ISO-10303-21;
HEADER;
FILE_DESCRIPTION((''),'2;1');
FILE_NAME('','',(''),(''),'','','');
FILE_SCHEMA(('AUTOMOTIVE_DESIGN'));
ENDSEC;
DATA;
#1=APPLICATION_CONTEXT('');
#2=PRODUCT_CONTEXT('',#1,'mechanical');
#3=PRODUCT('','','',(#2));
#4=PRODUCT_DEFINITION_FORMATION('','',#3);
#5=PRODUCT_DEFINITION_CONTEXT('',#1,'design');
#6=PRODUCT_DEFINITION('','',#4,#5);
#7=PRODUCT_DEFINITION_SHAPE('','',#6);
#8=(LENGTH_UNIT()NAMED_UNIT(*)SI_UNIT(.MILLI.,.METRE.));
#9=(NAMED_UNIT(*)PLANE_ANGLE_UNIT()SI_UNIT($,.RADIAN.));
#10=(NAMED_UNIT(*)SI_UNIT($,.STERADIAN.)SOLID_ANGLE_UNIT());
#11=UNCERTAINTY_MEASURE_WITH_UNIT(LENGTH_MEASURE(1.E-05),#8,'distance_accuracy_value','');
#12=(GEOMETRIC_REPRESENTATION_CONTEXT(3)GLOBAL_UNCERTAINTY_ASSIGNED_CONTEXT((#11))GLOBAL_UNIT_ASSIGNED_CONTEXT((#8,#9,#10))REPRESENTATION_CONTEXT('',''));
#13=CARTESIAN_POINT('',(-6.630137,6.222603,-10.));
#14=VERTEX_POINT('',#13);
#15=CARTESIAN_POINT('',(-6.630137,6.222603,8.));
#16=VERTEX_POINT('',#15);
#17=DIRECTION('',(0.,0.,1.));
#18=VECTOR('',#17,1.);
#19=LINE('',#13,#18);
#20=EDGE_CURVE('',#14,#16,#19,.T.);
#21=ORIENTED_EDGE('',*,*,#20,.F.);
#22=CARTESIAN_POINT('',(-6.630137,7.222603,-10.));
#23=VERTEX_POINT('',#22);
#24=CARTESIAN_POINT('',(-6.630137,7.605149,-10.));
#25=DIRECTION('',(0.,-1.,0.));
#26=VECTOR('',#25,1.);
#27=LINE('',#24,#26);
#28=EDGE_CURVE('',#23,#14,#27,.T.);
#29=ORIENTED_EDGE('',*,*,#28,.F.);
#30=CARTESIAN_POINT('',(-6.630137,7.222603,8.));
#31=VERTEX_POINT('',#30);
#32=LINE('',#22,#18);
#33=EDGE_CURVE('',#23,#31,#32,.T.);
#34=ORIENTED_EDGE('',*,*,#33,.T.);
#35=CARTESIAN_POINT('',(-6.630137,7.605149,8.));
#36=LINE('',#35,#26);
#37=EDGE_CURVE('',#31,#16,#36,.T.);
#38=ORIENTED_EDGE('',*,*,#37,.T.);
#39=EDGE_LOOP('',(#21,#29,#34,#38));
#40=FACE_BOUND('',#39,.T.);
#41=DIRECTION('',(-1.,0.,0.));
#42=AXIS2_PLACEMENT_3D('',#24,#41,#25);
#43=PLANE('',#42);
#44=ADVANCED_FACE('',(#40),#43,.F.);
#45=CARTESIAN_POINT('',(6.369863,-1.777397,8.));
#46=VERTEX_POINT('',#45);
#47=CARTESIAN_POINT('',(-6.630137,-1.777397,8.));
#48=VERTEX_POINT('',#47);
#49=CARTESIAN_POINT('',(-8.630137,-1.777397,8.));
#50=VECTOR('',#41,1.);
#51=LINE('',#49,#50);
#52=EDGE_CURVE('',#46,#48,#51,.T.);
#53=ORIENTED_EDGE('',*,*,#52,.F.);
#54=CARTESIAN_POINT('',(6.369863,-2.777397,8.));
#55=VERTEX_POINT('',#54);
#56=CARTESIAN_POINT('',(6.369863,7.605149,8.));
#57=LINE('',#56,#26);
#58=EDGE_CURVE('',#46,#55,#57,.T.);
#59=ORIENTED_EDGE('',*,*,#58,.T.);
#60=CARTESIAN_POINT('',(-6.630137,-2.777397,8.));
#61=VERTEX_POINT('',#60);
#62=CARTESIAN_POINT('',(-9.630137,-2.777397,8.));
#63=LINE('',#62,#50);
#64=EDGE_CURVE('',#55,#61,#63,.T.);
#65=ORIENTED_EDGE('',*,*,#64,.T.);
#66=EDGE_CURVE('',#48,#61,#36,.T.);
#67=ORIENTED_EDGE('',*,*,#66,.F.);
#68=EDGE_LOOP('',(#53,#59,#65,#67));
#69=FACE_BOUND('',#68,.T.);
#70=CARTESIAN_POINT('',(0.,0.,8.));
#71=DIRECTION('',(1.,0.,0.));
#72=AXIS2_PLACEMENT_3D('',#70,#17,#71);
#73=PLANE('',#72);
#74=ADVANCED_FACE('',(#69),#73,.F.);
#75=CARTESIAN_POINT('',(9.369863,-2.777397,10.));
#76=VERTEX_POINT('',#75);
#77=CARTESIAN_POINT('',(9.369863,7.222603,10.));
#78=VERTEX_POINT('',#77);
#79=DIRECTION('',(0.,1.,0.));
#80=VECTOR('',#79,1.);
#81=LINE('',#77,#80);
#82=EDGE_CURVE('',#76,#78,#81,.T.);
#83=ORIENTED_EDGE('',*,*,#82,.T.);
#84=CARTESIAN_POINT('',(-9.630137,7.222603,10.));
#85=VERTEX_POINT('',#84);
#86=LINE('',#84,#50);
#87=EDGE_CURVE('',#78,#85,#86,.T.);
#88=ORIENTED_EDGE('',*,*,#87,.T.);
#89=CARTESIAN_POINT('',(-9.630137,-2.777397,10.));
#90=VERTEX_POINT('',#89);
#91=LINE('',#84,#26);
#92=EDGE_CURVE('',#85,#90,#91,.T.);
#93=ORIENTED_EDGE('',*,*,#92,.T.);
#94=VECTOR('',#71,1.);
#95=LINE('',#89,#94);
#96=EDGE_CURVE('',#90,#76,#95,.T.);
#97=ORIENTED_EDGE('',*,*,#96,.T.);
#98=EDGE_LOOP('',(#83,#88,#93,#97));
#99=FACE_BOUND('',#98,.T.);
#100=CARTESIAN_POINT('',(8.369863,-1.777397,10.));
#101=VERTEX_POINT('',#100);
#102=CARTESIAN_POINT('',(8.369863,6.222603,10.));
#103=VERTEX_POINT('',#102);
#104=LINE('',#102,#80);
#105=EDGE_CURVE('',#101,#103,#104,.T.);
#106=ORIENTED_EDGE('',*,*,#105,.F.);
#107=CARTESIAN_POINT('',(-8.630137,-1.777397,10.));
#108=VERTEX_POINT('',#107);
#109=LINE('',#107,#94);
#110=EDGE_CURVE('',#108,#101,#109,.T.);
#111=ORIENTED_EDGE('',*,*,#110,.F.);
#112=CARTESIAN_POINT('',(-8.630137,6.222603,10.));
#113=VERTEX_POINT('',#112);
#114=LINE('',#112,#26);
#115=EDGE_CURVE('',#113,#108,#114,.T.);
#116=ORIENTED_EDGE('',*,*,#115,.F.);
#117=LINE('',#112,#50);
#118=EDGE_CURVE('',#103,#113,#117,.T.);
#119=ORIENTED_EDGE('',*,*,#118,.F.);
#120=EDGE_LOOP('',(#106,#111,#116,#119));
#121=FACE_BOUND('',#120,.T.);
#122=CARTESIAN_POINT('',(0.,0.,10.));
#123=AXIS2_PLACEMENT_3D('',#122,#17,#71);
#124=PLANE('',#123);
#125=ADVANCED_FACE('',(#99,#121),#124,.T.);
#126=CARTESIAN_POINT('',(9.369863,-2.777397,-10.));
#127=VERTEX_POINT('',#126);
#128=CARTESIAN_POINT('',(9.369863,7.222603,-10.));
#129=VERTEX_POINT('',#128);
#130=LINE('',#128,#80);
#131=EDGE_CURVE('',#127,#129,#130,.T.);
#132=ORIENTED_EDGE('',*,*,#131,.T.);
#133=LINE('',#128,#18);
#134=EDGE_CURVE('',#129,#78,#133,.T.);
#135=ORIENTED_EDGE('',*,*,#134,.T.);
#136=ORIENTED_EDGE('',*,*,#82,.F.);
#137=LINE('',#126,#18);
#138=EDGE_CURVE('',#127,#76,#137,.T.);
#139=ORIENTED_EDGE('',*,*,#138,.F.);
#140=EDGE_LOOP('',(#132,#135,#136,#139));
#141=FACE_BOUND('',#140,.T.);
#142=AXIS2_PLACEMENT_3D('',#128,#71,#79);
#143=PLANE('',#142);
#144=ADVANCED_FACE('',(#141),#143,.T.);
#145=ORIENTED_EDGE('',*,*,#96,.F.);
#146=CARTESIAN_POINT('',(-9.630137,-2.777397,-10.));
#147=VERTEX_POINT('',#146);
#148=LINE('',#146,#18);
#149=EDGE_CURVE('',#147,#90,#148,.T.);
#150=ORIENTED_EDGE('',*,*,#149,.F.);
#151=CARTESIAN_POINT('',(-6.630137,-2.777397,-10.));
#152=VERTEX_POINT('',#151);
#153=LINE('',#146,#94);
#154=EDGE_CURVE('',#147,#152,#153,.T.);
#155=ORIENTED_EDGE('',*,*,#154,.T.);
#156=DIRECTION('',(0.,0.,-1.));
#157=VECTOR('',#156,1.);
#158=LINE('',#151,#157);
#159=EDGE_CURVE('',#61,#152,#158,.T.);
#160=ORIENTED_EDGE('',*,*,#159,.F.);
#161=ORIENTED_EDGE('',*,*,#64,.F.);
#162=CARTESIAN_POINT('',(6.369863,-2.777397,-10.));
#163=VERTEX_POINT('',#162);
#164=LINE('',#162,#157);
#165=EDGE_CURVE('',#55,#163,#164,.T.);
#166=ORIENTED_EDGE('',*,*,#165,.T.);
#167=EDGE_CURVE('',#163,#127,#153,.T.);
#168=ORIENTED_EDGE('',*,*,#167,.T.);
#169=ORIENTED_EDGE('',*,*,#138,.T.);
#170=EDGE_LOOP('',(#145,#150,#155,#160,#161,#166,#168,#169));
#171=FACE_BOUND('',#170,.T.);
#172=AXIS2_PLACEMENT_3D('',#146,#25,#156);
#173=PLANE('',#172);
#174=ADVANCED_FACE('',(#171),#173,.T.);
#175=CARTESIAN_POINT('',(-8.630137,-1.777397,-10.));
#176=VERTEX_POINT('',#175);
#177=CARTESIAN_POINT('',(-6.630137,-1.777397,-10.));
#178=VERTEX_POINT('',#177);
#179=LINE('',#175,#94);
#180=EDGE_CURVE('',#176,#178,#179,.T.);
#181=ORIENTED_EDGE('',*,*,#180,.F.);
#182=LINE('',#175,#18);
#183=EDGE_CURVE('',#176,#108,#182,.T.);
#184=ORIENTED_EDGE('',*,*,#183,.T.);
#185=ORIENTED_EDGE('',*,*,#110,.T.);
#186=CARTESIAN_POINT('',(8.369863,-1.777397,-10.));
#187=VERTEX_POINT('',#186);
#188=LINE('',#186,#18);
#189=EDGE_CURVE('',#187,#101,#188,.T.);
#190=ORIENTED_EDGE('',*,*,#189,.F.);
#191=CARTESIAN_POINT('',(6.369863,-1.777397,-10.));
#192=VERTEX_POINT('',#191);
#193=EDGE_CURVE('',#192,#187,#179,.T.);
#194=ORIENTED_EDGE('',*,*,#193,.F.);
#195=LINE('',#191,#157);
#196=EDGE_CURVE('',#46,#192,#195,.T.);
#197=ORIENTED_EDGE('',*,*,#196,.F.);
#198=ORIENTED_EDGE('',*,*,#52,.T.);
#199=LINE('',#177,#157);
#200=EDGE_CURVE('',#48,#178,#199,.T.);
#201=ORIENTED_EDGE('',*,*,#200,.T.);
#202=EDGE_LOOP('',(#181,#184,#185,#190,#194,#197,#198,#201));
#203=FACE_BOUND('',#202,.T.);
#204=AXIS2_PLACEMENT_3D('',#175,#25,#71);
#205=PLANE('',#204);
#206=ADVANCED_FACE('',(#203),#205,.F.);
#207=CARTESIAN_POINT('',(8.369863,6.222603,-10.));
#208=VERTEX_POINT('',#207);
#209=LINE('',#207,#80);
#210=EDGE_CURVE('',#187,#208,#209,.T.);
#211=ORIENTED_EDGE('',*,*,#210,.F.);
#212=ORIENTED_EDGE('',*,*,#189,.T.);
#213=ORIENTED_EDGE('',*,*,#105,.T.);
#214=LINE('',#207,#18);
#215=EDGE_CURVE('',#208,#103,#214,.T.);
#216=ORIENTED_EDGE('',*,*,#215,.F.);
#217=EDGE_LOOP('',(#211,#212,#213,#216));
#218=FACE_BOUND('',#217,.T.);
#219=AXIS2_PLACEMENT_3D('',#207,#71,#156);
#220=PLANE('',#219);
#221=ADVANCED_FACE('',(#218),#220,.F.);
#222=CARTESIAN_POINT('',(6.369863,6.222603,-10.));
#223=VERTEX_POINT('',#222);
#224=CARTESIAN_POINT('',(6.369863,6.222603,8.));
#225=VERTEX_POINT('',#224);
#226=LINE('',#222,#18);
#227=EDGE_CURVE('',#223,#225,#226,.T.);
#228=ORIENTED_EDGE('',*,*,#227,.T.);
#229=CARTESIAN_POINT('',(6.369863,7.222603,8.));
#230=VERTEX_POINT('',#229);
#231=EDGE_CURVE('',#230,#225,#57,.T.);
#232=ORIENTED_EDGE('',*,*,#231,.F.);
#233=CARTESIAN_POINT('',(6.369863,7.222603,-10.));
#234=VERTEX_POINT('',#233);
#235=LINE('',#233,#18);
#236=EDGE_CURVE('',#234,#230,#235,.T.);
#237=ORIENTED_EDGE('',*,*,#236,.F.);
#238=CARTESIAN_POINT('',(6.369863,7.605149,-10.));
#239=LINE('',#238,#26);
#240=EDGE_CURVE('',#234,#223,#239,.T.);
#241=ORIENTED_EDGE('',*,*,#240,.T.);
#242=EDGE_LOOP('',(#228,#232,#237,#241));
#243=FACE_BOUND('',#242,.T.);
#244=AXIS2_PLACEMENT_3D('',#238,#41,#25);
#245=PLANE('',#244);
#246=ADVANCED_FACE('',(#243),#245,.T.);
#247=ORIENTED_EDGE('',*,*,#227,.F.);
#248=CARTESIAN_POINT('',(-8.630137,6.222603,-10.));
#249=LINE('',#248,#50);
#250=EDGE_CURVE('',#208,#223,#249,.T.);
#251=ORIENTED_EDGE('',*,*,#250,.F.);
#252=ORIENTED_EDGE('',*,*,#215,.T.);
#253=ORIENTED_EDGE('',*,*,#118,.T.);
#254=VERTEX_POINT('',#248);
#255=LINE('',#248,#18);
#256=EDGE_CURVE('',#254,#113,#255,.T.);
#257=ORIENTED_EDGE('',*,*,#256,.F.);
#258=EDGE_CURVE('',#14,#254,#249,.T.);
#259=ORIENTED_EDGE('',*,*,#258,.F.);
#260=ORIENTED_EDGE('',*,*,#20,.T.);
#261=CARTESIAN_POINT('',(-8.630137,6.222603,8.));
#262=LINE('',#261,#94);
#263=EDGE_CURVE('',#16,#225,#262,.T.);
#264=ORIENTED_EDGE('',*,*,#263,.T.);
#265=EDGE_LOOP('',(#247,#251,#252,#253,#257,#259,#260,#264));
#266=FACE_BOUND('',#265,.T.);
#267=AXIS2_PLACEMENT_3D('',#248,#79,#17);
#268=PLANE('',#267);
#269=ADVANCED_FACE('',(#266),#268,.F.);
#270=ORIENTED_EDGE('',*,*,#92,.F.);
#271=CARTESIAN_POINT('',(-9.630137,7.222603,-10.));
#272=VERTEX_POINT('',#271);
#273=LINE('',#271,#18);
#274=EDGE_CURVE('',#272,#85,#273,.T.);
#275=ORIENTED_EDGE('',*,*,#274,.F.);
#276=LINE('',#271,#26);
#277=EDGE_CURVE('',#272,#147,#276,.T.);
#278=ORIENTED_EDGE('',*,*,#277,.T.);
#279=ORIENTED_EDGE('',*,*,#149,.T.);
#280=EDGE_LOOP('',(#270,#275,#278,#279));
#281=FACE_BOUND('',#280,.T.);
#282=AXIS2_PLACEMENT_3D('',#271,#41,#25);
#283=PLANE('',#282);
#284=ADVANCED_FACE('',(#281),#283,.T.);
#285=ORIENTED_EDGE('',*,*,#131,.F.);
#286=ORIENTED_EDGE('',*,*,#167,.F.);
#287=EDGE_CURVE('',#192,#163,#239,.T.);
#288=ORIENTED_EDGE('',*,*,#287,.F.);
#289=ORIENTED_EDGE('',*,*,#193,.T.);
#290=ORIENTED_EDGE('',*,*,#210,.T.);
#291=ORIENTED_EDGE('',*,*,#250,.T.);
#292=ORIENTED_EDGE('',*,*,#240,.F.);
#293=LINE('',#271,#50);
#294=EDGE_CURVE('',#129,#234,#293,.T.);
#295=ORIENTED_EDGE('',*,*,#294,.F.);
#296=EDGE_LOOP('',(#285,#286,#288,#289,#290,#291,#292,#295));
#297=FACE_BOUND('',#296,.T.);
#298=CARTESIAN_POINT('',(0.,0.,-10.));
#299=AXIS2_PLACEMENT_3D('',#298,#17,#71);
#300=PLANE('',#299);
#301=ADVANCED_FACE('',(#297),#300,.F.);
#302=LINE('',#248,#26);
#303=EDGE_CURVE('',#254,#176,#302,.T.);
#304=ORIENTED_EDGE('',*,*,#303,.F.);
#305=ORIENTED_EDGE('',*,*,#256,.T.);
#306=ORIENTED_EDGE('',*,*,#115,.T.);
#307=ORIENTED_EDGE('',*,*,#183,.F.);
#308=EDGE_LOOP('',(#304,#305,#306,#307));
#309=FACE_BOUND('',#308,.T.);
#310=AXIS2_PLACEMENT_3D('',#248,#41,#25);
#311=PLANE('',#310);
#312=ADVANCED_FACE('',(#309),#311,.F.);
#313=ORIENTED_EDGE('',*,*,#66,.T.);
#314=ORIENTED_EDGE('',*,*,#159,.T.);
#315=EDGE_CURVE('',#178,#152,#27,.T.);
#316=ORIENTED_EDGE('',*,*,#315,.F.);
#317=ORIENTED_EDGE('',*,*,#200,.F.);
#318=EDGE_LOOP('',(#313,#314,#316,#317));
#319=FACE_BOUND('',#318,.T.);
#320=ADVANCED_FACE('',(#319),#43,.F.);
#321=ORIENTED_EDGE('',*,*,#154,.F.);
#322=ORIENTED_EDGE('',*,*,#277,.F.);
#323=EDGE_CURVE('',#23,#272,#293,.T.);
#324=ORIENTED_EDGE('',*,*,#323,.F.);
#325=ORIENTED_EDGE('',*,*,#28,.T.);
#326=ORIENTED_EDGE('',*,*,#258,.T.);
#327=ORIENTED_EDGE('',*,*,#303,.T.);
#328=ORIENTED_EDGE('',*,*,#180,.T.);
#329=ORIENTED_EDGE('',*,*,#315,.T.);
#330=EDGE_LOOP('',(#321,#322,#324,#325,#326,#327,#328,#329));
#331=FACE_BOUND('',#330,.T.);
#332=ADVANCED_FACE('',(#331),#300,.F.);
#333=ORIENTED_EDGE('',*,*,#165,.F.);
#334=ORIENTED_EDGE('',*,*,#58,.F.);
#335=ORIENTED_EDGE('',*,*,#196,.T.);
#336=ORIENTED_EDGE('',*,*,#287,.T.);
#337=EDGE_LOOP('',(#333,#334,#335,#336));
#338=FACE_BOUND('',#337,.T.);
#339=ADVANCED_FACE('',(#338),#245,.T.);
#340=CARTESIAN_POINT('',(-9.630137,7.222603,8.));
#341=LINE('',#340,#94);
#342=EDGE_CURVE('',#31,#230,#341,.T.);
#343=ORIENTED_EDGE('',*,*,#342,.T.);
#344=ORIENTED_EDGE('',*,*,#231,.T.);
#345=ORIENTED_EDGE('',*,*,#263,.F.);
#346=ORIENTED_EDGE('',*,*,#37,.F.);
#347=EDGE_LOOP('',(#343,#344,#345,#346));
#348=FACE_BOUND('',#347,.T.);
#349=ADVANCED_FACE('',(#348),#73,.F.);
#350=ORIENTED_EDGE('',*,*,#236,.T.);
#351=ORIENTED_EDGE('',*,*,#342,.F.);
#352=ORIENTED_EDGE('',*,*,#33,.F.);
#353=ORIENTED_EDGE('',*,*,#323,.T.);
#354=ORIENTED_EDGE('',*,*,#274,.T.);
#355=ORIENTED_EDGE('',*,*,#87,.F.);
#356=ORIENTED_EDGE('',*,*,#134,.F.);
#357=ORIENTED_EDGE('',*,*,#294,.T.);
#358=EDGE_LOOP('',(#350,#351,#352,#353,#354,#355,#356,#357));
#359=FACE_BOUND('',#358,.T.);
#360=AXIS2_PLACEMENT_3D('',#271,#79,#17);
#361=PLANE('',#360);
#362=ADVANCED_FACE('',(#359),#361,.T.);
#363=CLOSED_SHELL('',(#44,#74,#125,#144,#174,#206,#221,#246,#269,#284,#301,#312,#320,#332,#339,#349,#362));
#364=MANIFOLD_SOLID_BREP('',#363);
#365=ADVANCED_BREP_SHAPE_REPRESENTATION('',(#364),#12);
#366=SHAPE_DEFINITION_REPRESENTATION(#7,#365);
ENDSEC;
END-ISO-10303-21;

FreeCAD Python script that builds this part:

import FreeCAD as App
import Part
import Sketcher

V = App.Vector

doc = App.newDocument("Part")
body = doc.addObject("PartDesign::Body", "Body")

sketch1 = body.newObject("Sketcher::SketchObject", "Sketch")
sketch1.AttachmentSupport = (doc.getObject("XY_Plane"), [""])
sketch1.MapMode = "FlatFace"
sketch1.addGeometry([
    Part.LineSegment(V(-10, 7, 0), V(-10, -3, 0)),
    Part.LineSegment(V(-10, -3, 0), V(9, -3, 0)),
    Part.LineSegment(V(9, -3, 0), V(9, 7, 0)),
    Part.LineSegment(V(9, 7, 0), V(-10, 7, 0)),
], False)
sketch1.addConstraint([
    Sketcher.Constraint("Coincident", 0, 2, 1, 1),
    Sketcher.Constraint("Coincident", 1, 2, 2, 1),
    Sketcher.Constraint("Coincident", 2, 2, 3, 1),
    Sketcher.Constraint("Coincident", 3, 2, 0, 1),
    Sketcher.Constraint("Vertical", 0),
    Sketcher.Constraint("Horizontal", 1),
    Sketcher.Constraint("Vertical", 2),
    Sketcher.Constraint("Horizontal", 3),
    Sketcher.Constraint("DistanceX", 1, 1, 1, 2, 19.0),
    Sketcher.Constraint("DistanceY", 0, 2, 0, 1, 10.0),
    Sketcher.Constraint("DistanceX", 0, 2, -1, 1, 9.630137),
    Sketcher.Constraint("DistanceY", 0, 2, -1, 1, 2.777397),
])
pad1 = body.newObject("PartDesign::Pad", "Pad")
pad1.Profile = sketch1
pad1.Type = "TwoLengths"
pad1.Length = 10
pad1.Length2 = 10

sketch2 = body.newObject("Sketcher::SketchObject", "Sketch001")
sketch2.AttachmentSupport = (doc.getObject("XY_Plane"), [""])
sketch2.MapMode = "FlatFace"
sketch2.AttachmentOffset = App.Placement(V(0, 0, 10), App.Rotation())
sketch2.addGeometry([
    Part.LineSegment(V(-9, 6, 0), V(-9, -2, 0)),
    Part.LineSegment(V(-9, -2, 0), V(8, -2, 0)),
    Part.LineSegment(V(8, -2, 0), V(8, 6, 0)),
    Part.LineSegment(V(8, 6, 0), V(-9, 6, 0)),
], False)
sketch2.addConstraint([
    Sketcher.Constraint("Coincident", 0, 2, 1, 1),
    Sketcher.Constraint("Coincident", 1, 2, 2, 1),
    Sketcher.Constraint("Coincident", 2, 2, 3, 1),
    Sketcher.Constraint("Coincident", 3, 2, 0, 1),
    Sketcher.Constraint("Vertical", 0),
    Sketcher.Constraint("Horizontal", 1),
    Sketcher.Constraint("Vertical", 2),
    Sketcher.Constraint("Horizontal", 3),
    Sketcher.Constraint("DistanceX", 1, 1, 1, 2, 17.0),
    Sketcher.Constraint("DistanceY", 0, 2, 0, 1, 8.0),
    Sketcher.Constraint("DistanceX", 0, 2, -1, 1, 8.630137),
    Sketcher.Constraint("DistanceY", 0, 2, -1, 1, 1.777397),
])
pocket1 = body.newObject("PartDesign::Pocket", "Pocket")
pocket1.Profile = sketch2
pocket1.Length = 20

sketch3 = body.newObject("Sketcher::SketchObject", "Sketch002")
sketch3.AttachmentSupport = (doc.getObject("XY_Plane"), [""])
sketch3.MapMode = "FlatFace"
sketch3.addGeometry([
    Part.LineSegment(V(-7, 8, 0), V(-7, -3, 0)),
    Part.LineSegment(V(-7, -3, 0), V(6, -3, 0)),
    Part.LineSegment(V(6, -3, 0), V(6, 8, 0)),
    Part.LineSegment(V(6, 8, 0), V(-7, 8, 0)),
], False)
sketch3.addConstraint([
    Sketcher.Constraint("Coincident", 0, 2, 1, 1),
    Sketcher.Constraint("Coincident", 1, 2, 2, 1),
    Sketcher.Constraint("Coincident", 2, 2, 3, 1),
    Sketcher.Constraint("Coincident", 3, 2, 0, 1),
    Sketcher.Constraint("Vertical", 0),
    Sketcher.Constraint("Horizontal", 1),
    Sketcher.Constraint("Vertical", 2),
    Sketcher.Constraint("Horizontal", 3),
    Sketcher.Constraint("DistanceX", 1, 1, 1, 2, 13.0),
    Sketcher.Constraint("DistanceY", 0, 2, 0, 1, 10.519968),
    Sketcher.Constraint("DistanceY", 0, 2, -1, 1, 2.914818),
    Sketcher.Constraint("DistanceX", 0, 2, -1, 1, 6.630137),
])
pocket2 = body.newObject("PartDesign::Pocket", "Pocket001")
pocket2.Profile = sketch3
pocket2.Type = "TwoLengths"
pocket2.Length = 8
pocket2.Length2 = 10
pocket2.Reversed = True

doc.recompute()
